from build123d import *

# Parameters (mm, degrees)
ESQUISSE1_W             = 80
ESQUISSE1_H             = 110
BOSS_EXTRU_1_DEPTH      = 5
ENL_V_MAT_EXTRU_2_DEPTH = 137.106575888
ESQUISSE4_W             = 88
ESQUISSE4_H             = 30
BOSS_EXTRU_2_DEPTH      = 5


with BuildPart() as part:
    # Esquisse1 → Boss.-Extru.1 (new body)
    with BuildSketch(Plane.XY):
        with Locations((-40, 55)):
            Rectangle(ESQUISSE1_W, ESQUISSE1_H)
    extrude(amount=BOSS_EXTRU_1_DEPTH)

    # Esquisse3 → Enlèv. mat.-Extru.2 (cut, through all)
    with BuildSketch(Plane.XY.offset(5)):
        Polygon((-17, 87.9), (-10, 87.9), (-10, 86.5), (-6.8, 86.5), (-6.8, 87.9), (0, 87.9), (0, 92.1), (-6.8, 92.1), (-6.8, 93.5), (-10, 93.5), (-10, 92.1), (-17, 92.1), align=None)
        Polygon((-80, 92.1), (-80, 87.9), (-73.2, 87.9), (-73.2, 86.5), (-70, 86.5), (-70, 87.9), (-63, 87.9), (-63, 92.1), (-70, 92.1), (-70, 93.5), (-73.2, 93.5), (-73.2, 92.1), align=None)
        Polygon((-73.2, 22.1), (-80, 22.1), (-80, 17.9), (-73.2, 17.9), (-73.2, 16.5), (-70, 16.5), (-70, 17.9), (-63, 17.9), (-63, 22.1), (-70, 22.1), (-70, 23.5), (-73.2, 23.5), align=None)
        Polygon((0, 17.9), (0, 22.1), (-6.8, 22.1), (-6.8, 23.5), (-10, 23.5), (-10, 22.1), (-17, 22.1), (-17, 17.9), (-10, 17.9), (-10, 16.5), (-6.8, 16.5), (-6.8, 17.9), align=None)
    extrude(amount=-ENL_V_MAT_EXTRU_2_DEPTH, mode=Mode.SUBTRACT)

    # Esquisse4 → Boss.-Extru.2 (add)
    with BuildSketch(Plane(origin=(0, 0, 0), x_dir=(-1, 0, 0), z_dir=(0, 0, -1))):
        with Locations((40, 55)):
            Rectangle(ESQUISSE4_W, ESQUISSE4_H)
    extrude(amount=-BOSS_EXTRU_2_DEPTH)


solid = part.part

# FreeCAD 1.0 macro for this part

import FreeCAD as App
import Part
import Sketcher

V = App.Vector
Q = App.Units.Quantity


def add_polygon(sketch, points):
    """Adds a closed chain of lines whose ends are joined by coincident constraints."""
    first, n = sketch.GeometryCount, len(points)
    for a, b in zip(points, points[1:] + points[:1]):
        sketch.addGeometry(Part.LineSegment(App.Vector(*a, 0), App.Vector(*b, 0)), False)
    for i in range(n):
        sketch.addConstraint(Sketcher.Constraint("Coincident", first + i, 2, first + (i + 1) % n, 1))

doc = App.newDocument("Part")
body = doc.addObject("PartDesign::Body", "Body")

# Sketch on XY plane
sketch1 = body.newObject("Sketcher::SketchObject", "Sketch")
sketch1.AttachmentSupport = (doc.getObject("XY_Plane"), [""])
sketch1.MapMode = "FlatFace"
add_polygon(sketch1, [(-80, 110), (-80, 0), (0, 0), (0, 110)])  # lines 0-3
sketch1.addConstraint(Sketcher.Constraint("Vertical", 0))
sketch1.addConstraint(Sketcher.Constraint("Horizontal", 1))
sketch1.addConstraint(Sketcher.Constraint("Vertical", 2))
sketch1.addConstraint(Sketcher.Constraint("Horizontal", 3))
sketch1.addConstraint(Sketcher.Constraint("Coincident", 1, 2, -1, 1))
sketch1.addConstraint(Sketcher.Constraint("DistanceX", 1, 1, 1, 2, Q("80 mm")))
sketch1.addConstraint(Sketcher.Constraint("DistanceY", 0, 2, 0, 1, Q("110 mm")))
pad1 = body.newObject("PartDesign::Pad", "Pad")
pad1.Profile = sketch1
pad1.Length = 5

# Sketch on XY plane
sketch2 = body.newObject("Sketcher::SketchObject", "Sketch001")
sketch2.AttachmentSupport = (doc.getObject("XY_Plane"), [""])
sketch2.MapMode = "FlatFace"
sketch2.AttachmentOffset = App.Placement(V(0, 0, 5), App.Rotation())
add_polygon(sketch2, [(-17, 87.9), (-10, 87.9), (-10, 86.5), (-6.8, 86.5), (-6.8, 87.9), (0, 87.9), (0, 92.1), (-6.8, 92.1), (-6.8, 93.5), (-10, 93.5), (-10, 92.1), (-17, 92.1)])  # lines 0-11
add_polygon(sketch2, [(-80, 92.1), (-80, 87.9), (-73.2, 87.9), (-73.2, 86.5), (-70, 86.5), (-70, 87.9), (-63, 87.9), (-63, 92.1), (-70, 92.1), (-70, 93.5), (-73.2, 93.5), (-73.2, 92.1)])  # lines 12-23
add_polygon(sketch2, [(-73.2, 22.1), (-80, 22.1), (-80, 17.9), (-73.2, 17.9), (-73.2, 16.5), (-70, 16.5), (-70, 17.9), (-63, 17.9), (-63, 22.1), (-70, 22.1), (-70, 23.5), (-73.2, 23.5)])  # lines 24-35
add_polygon(sketch2, [(0, 17.9), (0, 22.1), (-6.8, 22.1), (-6.8, 23.5), (-10, 23.5), (-10, 22.1), (-17, 22.1), (-17, 17.9), (-10, 17.9), (-10, 16.5), (-6.8, 16.5), (-6.8, 17.9)])  # lines 36-47
sketch2.addConstraint(Sketcher.Constraint("Horizontal", 0))
sketch2.addConstraint(Sketcher.Constraint("Vertical", 1))
sketch2.addConstraint(Sketcher.Constraint("Horizontal", 2))
sketch2.addConstraint(Sketcher.Constraint("Vertical", 3))
sketch2.addConstraint(Sketcher.Constraint("Horizontal", 4))
sketch2.addConstraint(Sketcher.Constraint("Vertical", 5))
sketch2.addConstraint(Sketcher.Constraint("Horizontal", 6))
sketch2.addConstraint(Sketcher.Constraint("Vertical", 7))
sketch2.addConstraint(Sketcher.Constraint("Horizontal", 8))
sketch2.addConstraint(Sketcher.Constraint("Vertical", 9))
sketch2.addConstraint(Sketcher.Constraint("Horizontal", 10))
sketch2.addConstraint(Sketcher.Constraint("Vertical", 11))
sketch2.addConstraint(Sketcher.Constraint("Vertical", 12))
sketch2.addConstraint(Sketcher.Constraint("Horizontal", 13))
sketch2.addConstraint(Sketcher.Constraint("Vertical", 14))
sketch2.addConstraint(Sketcher.Constraint("Horizontal", 15))
sketch2.addConstraint(Sketcher.Constraint("Vertical", 16))
sketch2.addConstraint(Sketcher.Constraint("Horizontal", 17))
sketch2.addConstraint(Sketcher.Constraint("Vertical", 18))
sketch2.addConstraint(Sketcher.Constraint("Horizontal", 19))
sketch2.addConstraint(Sketcher.Constraint("Vertical", 20))
sketch2.addConstraint(Sketcher.Constraint("Horizontal", 21))
sketch2.addConstraint(Sketcher.Constraint("Vertical", 22))
sketch2.addConstraint(Sketcher.Constraint("Horizontal", 23))
sketch2.addConstraint(Sketcher.Constraint("Horizontal", 24))
sketch2.addConstraint(Sketcher.Constraint("Vertical", 25))
sketch2.addConstraint(Sketcher.Constraint("Horizontal", 26))
sketch2.addConstraint(Sketcher.Constraint("Vertical", 27))
sketch2.addConstraint(Sketcher.Constraint("Horizontal", 28))
sketch2.addConstraint(Sketcher.Constraint("Vertical", 29))
sketch2.addConstraint(Sketcher.Constraint("Horizontal", 30))
sketch2.addConstraint(Sketcher.Constraint("Vertical", 31))
sketch2.addConstraint(Sketcher.Constraint("Horizontal", 32))
sketch2.addConstraint(Sketcher.Constraint("Vertical", 33))
sketch2.addConstraint(Sketcher.Constraint("Horizontal", 34))
sketch2.addConstraint(Sketcher.Constraint("Vertical", 35))
sketch2.addConstraint(Sketcher.Constraint("Vertical", 36))
sketch2.addConstraint(Sketcher.Constraint("Horizontal", 37))
sketch2.addConstraint(Sketcher.Constraint("Vertical", 38))
sketch2.addConstraint(Sketcher.Constraint("Horizontal", 39))
sketch2.addConstraint(Sketcher.Constraint("Vertical", 40))
sketch2.addConstraint(Sketcher.Constraint("Horizontal", 41))
sketch2.addConstraint(Sketcher.Constraint("Vertical", 42))
sketch2.addConstraint(Sketcher.Constraint("Horizontal", 43))
sketch2.addConstraint(Sketcher.Constraint("Vertical", 44))
sketch2.addConstraint(Sketcher.Constraint("Horizontal", 45))
sketch2.addConstraint(Sketcher.Constraint("Vertical", 46))
sketch2.addConstraint(Sketcher.Constraint("Horizontal", 47))
sketch2.addConstraint(Sketcher.Constraint("PointOnObject", 4, 2, -2))
sketch2.addConstraint(Sketcher.Constraint("PointOnObject", 36, 2, -2))
sketch2.addConstraint(Sketcher.Constraint("Horizontal", 0, 2, 3, 2))
sketch2.addConstraint(Sketcher.Constraint("Horizontal", 6, 2, 9, 2))
sketch2.addConstraint(Sketcher.Constraint("Horizontal", 11, 2, 12, 2))
sketch2.addConstraint(Sketcher.Constraint("Horizontal", 2, 2, 14, 2))
sketch2.addConstraint(Sketcher.Constraint("Horizontal", 13, 2, 16, 2))
sketch2.addConstraint(Sketcher.Constraint("Horizontal", 10, 2, 18, 2))
sketch2.addConstraint(Sketcher.Constraint("Horizontal", 8, 2, 20, 2))
sketch2.addConstraint(Sketcher.Constraint("Horizontal", 19, 2, 22, 2))
sketch2.addConstraint(Sketcher.Constraint("Horizontal", 26, 2, 29, 2))
sketch2.addConstraint(Sketcher.Constraint("Horizontal", 24, 2, 31, 2))
sketch2.addConstraint(Sketcher.Constraint("Horizontal", 35, 2, 36, 2))
sketch2.addConstraint(Sketcher.Constraint("Horizontal", 34, 2, 38, 2))
sketch2.addConstraint(Sketcher.Constraint("Horizontal", 37, 2, 40, 2))
sketch2.addConstraint(Sketcher.Constraint("Horizontal", 30, 2, 42, 2))
sketch2.addConstraint(Sketcher.Constraint("Horizontal", 28, 2, 44, 2))
sketch2.addConstraint(Sketcher.Constraint("Horizontal", 43, 2, 46, 2))
sketch2.addConstraint(Sketcher.Constraint("Vertical", 3, 2, 6, 2))
sketch2.addConstraint(Sketcher.Constraint("Vertical", 1, 2, 8, 2))
sketch2.addConstraint(Sketcher.Constraint("Vertical", 16, 2, 19, 2))
sketch2.addConstraint(Sketcher.Constraint("Vertical", 14, 2, 21, 2))
sketch2.addConstraint(Sketcher.Constraint("Vertical", 23, 2, 24, 2))
sketch2.addConstraint(Sketcher.Constraint("Vertical", 22, 2, 26, 2))
sketch2.addConstraint(Sketcher.Constraint("Vertical", 20, 2, 28, 2))
sketch2.addConstraint(Sketcher.Constraint("Vertical", 18, 2, 30, 2))
sketch2.addConstraint(Sketcher.Constraint("Vertical", 29, 2, 32, 2))
sketch2.addConstraint(Sketcher.Constraint("Vertical", 27, 2, 34, 2))
sketch2.addConstraint(Sketcher.Constraint("Vertical", 7, 2, 37, 2))
sketch2.addConstraint(Sketcher.Constraint("Vertical", 9, 2, 39, 2))
sketch2.addConstraint(Sketcher.Constraint("Vertical", 11, 2, 41, 2))
sketch2.addConstraint(Sketcher.Constraint("Vertical", 40, 2, 43, 2))
sketch2.addConstraint(Sketcher.Constraint("Vertical", 38, 2, 45, 2))
sketch2.addConstraint(Sketcher.Constraint("Equal", 6, 13))
sketch2.addConstraint(Sketcher.Constraint("Equal", 8, 15))
sketch2.addConstraint(Sketcher.Constraint("Equal", 10, 17))
sketch2.addConstraint(Sketcher.Constraint("Equal", 3, 7))
sketch2.addConstraint(Sketcher.Constraint("Equal", 18, 25))
sketch2.addConstraint(Sketcher.Constraint("Equal", 22, 27))
sketch2.addConstraint(Sketcher.Constraint("Equal", 29, 33))
sketch2.addConstraint(Sketcher.Constraint("DistanceX", 0, 1, 0, 2, Q("7 mm")))
sketch2.addConstraint(Sketcher.Constraint("DistanceX", 2, 1, 2, 2, Q("3.2 mm")))
sketch2.addConstraint(Sketcher.Constraint("DistanceX", 4, 1, 4, 2, Q("6.8 mm")))
sketch2.addConstraint(Sketcher.Constraint("DistanceY", 1, 2, 1, 1, Q("1.4 mm")))
sketch2.addConstraint(Sketcher.Constraint("DistanceY", 5, 1, 5, 2, Q("4.2 mm")))
sketch2.addConstraint(Sketcher.Constraint("DistanceX", 12, 2, -1, 1, Q("80 mm")))
sketch2.addConstraint(Sketcher.Constraint("DistanceY", 25, 2, 12, 2, Q("70 mm")))
sketch2.addConstraint(Sketcher.Constraint("DistanceY", -1, 1, 0, 2, Q("87.9 mm")))
pocket1 = body.newObject("PartDesign::Pocket", "Pocket")
pocket1.Profile = sketch2
pocket1.Type = "ThroughAll"

# Sketch on XY plane
sketch3 = body.newObject("Sketcher::SketchObject", "Sketch002")
sketch3.AttachmentSupport = (doc.getObject("XY_Plane"), [""])
sketch3.MapMode = "FlatFace"
add_polygon(sketch3, [(4, 70), (4, 40), (-84, 40), (-84, 70)])  # lines 0-3
sketch3.addConstraint(Sketcher.Constraint("Vertical", 0))
sketch3.addConstraint(Sketcher.Constraint("Horizontal", 1))
sketch3.addConstraint(Sketcher.Constraint("Vertical", 2))
sketch3.addConstraint(Sketcher.Constraint("Horizontal", 3))
sketch3.addConstraint(Sketcher.Constraint("DistanceX", 1, 2, 1, 1, Q("88 mm")))
sketch3.addConstraint(Sketcher.Constraint("DistanceY", 0, 2, 0, 1, Q("30 mm")))
sketch3.addConstraint(Sketcher.Constraint("DistanceX", -1, 1, 0, 2, Q("4 mm")))
sketch3.addConstraint(Sketcher.Constraint("DistanceY", -1, 1, 0, 2, Q("40 mm")))
pad2 = body.newObject("PartDesign::Pad", "Pad001")
pad2.Profile = sketch3
pad2.Length = 5

doc.recompute()
